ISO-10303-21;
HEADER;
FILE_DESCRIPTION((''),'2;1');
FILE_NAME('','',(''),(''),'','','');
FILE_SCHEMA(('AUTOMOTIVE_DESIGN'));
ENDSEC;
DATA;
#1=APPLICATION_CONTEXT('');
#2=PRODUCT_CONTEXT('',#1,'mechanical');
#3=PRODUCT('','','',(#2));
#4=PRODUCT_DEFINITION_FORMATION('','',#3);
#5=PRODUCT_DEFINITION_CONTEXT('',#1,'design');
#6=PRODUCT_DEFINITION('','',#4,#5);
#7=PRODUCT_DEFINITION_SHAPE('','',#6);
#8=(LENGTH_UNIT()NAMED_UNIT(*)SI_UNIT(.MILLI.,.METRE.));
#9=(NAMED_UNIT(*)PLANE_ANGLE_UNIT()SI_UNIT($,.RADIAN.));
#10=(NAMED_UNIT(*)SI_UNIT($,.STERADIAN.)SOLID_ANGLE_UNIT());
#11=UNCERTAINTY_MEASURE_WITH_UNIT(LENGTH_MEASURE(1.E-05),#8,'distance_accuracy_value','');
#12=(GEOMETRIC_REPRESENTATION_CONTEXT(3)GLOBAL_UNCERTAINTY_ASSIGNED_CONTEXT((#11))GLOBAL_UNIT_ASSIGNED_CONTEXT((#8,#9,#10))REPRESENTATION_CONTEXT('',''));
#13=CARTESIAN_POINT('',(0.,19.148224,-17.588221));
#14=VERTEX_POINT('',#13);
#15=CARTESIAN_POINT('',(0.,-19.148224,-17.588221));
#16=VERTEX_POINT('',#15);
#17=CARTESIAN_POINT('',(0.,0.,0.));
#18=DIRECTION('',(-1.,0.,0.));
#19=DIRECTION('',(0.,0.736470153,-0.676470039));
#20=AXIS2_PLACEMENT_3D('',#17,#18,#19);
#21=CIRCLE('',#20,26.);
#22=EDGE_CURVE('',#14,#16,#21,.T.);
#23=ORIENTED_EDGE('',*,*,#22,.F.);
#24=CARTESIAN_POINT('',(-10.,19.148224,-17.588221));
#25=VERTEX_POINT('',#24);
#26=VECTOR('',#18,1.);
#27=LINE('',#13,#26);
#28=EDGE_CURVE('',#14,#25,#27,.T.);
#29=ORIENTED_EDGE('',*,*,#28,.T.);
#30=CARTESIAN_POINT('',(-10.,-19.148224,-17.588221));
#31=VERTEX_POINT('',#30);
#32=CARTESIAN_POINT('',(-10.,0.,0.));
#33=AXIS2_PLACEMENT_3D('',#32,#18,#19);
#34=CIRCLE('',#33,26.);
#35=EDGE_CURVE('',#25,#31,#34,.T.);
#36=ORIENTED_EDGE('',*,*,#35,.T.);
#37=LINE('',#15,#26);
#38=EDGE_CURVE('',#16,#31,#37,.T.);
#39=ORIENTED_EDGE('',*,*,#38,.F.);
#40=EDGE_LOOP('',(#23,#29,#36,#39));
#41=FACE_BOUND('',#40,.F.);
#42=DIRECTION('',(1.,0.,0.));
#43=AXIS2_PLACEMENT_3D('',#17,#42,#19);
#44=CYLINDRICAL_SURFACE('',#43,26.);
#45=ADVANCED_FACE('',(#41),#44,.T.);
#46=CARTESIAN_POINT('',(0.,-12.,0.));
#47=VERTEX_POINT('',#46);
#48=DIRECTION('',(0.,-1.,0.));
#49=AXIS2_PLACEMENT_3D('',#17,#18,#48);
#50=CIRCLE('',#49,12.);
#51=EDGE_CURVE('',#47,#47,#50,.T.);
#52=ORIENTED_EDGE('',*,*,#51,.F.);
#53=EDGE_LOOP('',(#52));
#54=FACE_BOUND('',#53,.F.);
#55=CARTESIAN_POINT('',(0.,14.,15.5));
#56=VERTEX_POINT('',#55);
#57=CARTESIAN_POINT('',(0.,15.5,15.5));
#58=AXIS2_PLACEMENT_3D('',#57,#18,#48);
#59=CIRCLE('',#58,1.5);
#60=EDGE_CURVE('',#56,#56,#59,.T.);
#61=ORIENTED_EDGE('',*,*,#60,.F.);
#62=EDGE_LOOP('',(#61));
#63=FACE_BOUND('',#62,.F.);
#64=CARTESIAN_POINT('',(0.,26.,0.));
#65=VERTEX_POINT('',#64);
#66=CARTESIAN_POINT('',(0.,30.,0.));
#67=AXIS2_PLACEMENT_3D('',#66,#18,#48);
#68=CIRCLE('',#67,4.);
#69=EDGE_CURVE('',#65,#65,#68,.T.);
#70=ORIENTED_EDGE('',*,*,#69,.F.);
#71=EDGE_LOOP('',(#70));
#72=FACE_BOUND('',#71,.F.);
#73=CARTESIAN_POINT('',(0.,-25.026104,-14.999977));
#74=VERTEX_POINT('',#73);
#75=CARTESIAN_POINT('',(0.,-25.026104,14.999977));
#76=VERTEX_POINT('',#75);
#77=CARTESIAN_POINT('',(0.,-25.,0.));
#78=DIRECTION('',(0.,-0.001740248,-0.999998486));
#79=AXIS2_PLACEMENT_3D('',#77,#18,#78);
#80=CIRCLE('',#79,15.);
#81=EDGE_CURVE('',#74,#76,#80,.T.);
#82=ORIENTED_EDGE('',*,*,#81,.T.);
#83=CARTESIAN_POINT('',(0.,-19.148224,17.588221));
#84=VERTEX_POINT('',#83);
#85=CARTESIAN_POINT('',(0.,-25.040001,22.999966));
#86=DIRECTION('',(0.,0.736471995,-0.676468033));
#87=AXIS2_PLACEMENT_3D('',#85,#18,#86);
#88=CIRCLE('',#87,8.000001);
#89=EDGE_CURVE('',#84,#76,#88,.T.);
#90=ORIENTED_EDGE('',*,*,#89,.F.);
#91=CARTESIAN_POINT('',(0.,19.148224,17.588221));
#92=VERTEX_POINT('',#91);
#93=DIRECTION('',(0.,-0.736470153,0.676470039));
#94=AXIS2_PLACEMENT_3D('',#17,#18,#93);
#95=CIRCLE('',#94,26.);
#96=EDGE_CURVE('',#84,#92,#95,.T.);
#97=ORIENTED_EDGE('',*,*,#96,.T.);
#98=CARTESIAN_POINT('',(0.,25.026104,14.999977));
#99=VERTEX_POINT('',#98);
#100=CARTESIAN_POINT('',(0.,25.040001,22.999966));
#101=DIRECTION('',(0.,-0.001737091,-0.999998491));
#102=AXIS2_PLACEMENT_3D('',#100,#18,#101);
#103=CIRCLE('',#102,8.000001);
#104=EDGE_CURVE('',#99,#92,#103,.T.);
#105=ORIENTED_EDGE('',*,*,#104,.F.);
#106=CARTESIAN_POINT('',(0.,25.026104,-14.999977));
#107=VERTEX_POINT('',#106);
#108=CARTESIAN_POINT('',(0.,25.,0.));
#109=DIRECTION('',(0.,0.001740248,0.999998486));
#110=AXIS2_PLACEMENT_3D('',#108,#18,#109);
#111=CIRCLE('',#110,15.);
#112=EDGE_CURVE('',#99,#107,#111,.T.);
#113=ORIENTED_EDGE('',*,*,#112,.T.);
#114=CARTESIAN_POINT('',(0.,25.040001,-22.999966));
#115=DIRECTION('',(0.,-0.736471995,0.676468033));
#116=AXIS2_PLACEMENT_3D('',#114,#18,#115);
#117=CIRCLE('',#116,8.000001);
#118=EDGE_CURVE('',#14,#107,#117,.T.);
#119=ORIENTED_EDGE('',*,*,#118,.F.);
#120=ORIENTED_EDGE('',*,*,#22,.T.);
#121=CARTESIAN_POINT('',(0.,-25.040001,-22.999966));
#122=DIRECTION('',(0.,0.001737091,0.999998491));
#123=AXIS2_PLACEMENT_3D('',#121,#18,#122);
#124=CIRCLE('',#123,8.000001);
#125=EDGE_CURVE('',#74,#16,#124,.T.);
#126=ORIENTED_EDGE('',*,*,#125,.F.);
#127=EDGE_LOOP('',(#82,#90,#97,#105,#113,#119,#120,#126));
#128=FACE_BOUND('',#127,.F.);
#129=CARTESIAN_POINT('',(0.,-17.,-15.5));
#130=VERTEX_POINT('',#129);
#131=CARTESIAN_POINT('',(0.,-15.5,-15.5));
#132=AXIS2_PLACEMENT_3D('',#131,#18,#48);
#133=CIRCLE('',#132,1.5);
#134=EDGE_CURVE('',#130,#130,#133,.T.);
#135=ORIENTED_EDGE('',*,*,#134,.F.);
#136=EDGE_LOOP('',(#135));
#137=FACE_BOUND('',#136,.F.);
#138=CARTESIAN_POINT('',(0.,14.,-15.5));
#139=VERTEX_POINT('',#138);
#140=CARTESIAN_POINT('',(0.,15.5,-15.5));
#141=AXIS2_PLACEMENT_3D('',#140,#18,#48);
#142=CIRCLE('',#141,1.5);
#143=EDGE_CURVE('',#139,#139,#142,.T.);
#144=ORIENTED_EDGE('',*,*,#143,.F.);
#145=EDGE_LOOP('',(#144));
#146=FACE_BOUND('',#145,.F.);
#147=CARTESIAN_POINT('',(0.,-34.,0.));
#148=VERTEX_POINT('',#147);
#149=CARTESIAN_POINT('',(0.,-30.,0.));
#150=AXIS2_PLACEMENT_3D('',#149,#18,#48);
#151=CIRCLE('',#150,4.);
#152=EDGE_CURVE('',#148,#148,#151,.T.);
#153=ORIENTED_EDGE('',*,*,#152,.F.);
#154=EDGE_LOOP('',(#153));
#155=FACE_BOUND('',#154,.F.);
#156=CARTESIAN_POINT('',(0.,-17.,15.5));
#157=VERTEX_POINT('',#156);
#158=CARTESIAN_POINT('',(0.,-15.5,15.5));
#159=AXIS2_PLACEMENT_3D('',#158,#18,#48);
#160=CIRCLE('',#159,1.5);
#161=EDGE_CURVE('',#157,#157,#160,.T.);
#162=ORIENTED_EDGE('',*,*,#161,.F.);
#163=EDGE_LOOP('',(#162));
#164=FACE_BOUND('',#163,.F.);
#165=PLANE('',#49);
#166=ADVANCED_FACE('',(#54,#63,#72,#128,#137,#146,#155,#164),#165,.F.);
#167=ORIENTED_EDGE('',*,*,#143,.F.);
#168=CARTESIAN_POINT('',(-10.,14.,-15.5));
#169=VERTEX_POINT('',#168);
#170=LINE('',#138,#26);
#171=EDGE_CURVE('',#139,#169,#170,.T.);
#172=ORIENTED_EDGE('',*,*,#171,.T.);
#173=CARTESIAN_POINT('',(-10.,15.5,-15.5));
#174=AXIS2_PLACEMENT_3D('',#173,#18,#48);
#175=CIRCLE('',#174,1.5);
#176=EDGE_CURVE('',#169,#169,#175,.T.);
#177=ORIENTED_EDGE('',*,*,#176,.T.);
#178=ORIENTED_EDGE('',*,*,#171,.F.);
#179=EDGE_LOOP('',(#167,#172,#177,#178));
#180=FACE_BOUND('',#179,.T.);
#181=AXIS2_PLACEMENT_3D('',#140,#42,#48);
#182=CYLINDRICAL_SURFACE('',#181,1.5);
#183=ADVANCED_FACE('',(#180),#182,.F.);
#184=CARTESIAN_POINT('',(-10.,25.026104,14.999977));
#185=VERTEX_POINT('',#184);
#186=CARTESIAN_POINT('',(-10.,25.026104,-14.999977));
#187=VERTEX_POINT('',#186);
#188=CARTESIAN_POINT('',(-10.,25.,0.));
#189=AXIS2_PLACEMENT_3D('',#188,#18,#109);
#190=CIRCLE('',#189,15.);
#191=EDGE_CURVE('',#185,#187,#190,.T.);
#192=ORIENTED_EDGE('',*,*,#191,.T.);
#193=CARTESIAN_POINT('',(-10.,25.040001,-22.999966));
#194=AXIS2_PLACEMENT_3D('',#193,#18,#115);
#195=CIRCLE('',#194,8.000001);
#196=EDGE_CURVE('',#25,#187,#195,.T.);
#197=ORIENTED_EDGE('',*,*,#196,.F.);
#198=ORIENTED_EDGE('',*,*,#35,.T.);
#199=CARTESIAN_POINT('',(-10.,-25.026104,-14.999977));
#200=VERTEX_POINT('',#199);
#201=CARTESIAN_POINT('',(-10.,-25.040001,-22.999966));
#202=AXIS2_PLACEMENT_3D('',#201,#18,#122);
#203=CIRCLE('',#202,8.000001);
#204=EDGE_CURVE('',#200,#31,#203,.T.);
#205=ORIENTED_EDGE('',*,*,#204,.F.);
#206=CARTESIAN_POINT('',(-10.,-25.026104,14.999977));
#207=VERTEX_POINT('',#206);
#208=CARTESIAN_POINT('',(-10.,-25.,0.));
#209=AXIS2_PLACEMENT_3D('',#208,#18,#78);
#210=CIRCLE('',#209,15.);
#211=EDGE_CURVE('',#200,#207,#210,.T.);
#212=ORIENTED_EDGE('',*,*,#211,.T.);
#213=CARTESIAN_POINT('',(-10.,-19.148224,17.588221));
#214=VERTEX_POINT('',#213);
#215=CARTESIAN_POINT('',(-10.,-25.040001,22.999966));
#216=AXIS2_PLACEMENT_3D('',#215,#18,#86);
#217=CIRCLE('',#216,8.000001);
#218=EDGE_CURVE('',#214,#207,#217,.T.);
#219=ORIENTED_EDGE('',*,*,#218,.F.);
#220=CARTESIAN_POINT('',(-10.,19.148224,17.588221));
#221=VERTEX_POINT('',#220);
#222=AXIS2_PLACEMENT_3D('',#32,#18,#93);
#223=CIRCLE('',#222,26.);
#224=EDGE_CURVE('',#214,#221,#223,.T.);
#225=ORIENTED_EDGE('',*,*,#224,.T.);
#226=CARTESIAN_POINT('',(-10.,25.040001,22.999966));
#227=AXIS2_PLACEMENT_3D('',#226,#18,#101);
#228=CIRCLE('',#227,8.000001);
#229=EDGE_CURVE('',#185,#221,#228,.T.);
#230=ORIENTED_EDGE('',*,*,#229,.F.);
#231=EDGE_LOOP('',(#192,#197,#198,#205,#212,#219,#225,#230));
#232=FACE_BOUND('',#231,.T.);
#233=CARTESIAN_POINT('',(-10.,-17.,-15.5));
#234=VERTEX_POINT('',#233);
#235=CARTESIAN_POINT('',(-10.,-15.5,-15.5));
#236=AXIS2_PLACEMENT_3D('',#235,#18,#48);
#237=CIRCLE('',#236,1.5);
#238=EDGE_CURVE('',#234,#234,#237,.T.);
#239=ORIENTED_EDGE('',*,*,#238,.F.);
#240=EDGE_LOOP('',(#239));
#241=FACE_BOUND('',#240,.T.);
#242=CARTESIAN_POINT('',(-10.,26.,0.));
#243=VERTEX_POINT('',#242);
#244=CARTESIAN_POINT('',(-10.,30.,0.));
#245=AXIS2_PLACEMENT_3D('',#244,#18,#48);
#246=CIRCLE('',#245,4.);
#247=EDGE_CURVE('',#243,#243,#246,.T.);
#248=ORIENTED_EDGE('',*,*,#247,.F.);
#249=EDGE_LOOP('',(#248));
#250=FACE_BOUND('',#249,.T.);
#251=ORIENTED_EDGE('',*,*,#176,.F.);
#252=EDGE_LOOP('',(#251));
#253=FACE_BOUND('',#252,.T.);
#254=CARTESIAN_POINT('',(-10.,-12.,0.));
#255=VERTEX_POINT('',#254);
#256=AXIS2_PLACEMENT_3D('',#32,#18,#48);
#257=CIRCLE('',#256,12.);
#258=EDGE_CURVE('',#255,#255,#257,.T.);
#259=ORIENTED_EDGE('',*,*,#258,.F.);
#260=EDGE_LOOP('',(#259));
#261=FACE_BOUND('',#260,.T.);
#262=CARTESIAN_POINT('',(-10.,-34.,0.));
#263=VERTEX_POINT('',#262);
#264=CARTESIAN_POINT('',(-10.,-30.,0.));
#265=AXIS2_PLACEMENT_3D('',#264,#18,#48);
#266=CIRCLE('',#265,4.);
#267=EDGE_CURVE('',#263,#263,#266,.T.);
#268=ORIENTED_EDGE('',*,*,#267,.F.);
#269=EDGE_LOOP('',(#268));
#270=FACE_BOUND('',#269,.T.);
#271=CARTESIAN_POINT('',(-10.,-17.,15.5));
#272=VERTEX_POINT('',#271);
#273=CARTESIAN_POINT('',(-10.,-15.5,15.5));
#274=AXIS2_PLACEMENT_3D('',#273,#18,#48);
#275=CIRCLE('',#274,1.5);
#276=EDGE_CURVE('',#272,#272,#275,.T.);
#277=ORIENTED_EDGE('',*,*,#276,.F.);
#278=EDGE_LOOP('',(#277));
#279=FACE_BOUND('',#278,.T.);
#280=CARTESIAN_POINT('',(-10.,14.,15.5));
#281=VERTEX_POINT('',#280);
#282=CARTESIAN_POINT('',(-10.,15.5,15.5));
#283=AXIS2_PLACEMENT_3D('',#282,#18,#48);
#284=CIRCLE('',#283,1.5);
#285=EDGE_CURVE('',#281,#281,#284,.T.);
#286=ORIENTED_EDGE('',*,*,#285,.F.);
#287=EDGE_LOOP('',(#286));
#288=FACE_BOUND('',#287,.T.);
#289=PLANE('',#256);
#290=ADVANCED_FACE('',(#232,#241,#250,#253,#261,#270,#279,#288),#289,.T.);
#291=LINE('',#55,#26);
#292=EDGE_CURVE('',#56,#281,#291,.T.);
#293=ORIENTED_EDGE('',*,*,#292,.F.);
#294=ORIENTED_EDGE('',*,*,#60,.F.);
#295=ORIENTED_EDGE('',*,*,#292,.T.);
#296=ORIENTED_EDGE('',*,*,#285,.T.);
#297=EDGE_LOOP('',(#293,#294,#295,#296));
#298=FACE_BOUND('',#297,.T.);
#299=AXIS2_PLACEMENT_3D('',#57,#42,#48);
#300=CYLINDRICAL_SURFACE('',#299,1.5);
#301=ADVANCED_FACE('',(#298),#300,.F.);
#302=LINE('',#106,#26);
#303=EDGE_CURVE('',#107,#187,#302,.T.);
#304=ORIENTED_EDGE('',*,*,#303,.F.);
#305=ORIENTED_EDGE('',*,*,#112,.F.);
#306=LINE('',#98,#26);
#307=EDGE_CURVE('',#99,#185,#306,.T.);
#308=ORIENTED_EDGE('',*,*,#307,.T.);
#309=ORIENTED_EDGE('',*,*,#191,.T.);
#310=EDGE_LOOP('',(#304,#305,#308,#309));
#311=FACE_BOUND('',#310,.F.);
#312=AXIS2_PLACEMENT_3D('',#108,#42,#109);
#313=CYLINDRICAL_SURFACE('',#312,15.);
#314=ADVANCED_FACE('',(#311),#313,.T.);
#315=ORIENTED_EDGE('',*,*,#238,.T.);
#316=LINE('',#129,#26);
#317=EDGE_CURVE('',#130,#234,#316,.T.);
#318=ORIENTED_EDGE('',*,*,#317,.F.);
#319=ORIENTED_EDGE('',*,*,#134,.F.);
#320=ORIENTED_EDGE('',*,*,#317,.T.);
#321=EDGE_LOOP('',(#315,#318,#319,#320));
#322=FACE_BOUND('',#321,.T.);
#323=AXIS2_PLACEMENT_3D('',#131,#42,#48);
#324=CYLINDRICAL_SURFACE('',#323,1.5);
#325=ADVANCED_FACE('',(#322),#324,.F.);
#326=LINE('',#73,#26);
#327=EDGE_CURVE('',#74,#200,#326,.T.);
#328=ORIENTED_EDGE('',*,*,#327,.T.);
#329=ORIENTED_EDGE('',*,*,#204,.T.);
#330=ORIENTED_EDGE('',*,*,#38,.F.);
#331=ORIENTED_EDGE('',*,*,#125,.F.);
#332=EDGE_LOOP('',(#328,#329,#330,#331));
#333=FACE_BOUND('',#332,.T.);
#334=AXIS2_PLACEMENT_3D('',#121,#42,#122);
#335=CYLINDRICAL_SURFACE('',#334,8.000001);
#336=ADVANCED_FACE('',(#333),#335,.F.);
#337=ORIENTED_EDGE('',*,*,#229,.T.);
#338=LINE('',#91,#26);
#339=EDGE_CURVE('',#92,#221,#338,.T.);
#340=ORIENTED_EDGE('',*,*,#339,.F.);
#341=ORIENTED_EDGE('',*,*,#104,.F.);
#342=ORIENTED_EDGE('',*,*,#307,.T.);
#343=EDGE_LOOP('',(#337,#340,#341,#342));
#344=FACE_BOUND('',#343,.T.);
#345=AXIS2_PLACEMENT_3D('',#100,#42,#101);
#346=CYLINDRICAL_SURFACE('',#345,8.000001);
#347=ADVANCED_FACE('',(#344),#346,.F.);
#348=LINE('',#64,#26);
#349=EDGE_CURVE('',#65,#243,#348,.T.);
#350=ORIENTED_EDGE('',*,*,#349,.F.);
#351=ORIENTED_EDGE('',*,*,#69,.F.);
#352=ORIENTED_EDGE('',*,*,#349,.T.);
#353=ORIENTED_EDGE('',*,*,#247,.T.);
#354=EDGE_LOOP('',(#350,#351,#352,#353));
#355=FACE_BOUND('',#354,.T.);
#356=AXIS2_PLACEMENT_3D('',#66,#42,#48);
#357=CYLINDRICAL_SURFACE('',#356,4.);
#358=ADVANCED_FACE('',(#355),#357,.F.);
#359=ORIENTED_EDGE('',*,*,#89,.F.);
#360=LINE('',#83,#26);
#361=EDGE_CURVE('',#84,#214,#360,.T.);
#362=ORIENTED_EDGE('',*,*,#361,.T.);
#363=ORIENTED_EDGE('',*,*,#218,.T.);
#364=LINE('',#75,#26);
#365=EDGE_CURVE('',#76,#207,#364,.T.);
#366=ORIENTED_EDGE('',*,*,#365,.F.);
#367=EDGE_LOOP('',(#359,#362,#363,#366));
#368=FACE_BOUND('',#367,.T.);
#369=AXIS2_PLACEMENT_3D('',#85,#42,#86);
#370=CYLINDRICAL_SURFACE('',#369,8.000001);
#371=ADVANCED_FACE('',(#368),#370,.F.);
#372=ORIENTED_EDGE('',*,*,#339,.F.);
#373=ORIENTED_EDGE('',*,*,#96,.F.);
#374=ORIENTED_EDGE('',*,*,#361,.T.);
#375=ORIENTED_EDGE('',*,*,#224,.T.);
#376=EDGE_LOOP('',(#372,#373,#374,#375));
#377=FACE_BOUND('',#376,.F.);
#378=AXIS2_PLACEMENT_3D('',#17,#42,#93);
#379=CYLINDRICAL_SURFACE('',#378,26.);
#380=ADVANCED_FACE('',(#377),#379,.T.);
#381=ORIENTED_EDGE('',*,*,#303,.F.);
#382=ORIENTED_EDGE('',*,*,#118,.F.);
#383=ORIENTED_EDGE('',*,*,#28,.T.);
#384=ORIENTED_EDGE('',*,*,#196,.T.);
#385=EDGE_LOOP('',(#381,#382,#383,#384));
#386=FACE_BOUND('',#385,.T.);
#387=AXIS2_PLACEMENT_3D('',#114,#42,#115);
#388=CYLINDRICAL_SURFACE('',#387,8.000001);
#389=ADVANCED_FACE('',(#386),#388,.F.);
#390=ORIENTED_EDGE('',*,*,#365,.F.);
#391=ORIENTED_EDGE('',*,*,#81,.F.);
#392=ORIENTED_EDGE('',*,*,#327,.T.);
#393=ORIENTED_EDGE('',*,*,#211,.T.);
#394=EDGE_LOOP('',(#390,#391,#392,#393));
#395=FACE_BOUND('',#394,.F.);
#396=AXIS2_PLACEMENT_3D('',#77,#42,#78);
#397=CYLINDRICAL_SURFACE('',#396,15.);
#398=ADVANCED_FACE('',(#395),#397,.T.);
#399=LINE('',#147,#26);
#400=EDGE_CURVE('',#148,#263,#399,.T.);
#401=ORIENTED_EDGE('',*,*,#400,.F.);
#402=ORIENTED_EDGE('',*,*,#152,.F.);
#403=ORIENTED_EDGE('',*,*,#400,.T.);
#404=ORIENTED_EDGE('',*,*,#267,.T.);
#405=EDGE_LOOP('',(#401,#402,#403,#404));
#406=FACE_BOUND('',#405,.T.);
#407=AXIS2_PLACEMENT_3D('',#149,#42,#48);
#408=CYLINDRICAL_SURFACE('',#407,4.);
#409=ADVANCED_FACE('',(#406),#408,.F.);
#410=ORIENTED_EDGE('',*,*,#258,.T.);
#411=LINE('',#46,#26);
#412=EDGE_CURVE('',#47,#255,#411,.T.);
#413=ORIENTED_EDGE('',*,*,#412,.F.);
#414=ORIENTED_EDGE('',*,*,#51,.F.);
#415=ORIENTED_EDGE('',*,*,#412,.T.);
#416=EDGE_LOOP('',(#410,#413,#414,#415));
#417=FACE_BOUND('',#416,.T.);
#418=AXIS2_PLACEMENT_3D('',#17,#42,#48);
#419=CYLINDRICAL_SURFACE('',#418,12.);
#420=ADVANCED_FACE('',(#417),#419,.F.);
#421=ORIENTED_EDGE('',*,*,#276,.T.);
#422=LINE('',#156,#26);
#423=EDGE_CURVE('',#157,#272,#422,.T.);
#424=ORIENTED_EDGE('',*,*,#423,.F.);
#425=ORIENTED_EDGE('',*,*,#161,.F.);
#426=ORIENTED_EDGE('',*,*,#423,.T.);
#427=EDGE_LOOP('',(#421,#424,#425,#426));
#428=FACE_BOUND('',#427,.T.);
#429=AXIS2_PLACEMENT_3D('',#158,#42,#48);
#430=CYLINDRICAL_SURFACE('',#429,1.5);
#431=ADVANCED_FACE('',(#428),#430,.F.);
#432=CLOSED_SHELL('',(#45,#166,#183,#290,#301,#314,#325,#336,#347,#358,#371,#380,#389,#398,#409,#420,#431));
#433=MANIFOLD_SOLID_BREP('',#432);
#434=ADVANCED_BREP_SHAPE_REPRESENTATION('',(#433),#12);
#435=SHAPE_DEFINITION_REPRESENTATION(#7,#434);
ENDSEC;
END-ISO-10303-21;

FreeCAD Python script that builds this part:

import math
import FreeCAD as App
import Part
import Sketcher

V = App.Vector
Q = App.Units.Quantity

doc = App.newDocument("Part")
params = doc.addObject("Spreadsheet::Sheet", "Params")
for row, (alias, value) in enumerate([
    ("sketch1_diameter", "3 mm"),
    ("sketch1_diameter2", "8 mm"),
    ("sketch1_diameter3", "24 mm"),
    ("sketch1_radius", "26 mm"),
    ("sketch1_radius2", "8.000001 mm"),
    ("pad1_length", "10 mm"),
], start=1):
    params.set(f"A{row}", alias)
    params.set(f"B{row}", "=" + value)
    params.setAlias(f"B{row}", alias)

body = doc.addObject("PartDesign::Body", "Body")

# Sketch on YZ plane
sketch1 = body.newObject("Sketcher::SketchObject", "Sketch")
sketch1.AttachmentSupport = (doc.getObject("YZ_Plane"), [""])
sketch1.MapMode = "FlatFace"
sketch1.addGeometry(Part.ArcOfCircle(Part.Circle(V(0, 0, 0), V(0, 0, 1), 26), math.radians(42.568411), math.radians(137.431589)), False)
sketch1.addGeometry(Part.ArcOfCircle(Part.Circle(V(25.040001, 22.999966, 0), V(0, 0, 1), 8.000001), math.radians(-137.431745), math.radians(-90.099528)), False)
sketch1.addGeometry(Part.ArcOfCircle(Part.Circle(V(25, 0, 0), V(0, 0, 1), 15), math.radians(-89.900291), math.radians(89.900291)), False)
sketch1.addGeometry(Part.ArcOfCircle(Part.Circle(V(25.040001, -22.999966, 0), V(0, 0, 1), 8.000001), math.radians(90.099528), math.radians(137.431745)), False)
sketch1.addGeometry(Part.ArcOfCircle(Part.Circle(V(0, 0, 0), V(0, 0, 1), 26), math.radians(-137.431589), math.radians(-42.568411)), False)
sketch1.addGeometry(Part.ArcOfCircle(Part.Circle(V(-25.040001, -22.999966, 0), V(0, 0, 1), 8.000001), math.radians(42.568255), math.radians(89.900472)), False)
sketch1.addGeometry(Part.ArcOfCircle(Part.Circle(V(-25, 0, 0), V(0, 0, 1), 15), math.radians(90.099709), math.radians(269.900291)), False)
sketch1.addGeometry(Part.ArcOfCircle(Part.Circle(V(-25.040001, 22.999966, 0), V(0, 0, 1), 8.000001), math.radians(-89.900472), math.radians(-42.568255)), False)
sketch1.addGeometry(Part.Circle(V(15.5, -15.5, 0), V(0, 0, 1), 1.5), False)
sketch1.addGeometry(Part.Circle(V(-15.5, -15.5, 0), V(0, 0, 1), 1.5), False)
sketch1.addGeometry(Part.Circle(V(30, 0, 0), V(0, 0, 1), 4), False)
sketch1.addGeometry(Part.Circle(V(15.5, 15.5, 0), V(0, 0, 1), 1.5), False)
sketch1.addGeometry(Part.Circle(V(0, 0, 0), V(0, 0, 1), 12), False)
sketch1.addGeometry(Part.Circle(V(-30, 0, 0), V(0, 0, 1), 4), False)
sketch1.addGeometry(Part.Circle(V(-15.5, 15.5, 0), V(0, 0, 1), 1.5), False)
sketch1.addConstraint(Sketcher.Constraint("Coincident", 0, 1, 1, 1))
sketch1.addConstraint(Sketcher.Constraint("Coincident", 1, 2, 2, 2))
sketch1.addConstraint(Sketcher.Constraint("Coincident", 2, 1, 3, 1))
sketch1.addConstraint(Sketcher.Constraint("Coincident", 3, 2, 4, 2))
sketch1.addConstraint(Sketcher.Constraint("Coincident", 4, 1, 5, 1))
sketch1.addConstraint(Sketcher.Constraint("Coincident", 5, 2, 6, 2))
sketch1.addConstraint(Sketcher.Constraint("Coincident", 6, 1, 7, 1))
sketch1.addConstraint(Sketcher.Constraint("Coincident", 7, 2, 0, 2))
sketch1.addConstraint(Sketcher.Constraint("Coincident", 0, 3, -1, 1))
sketch1.addConstraint(Sketcher.Constraint("Coincident", 4, 3, -1, 1))
sketch1.addConstraint(Sketcher.Constraint("Coincident", 12, 3, -1, 1))
sketch1.addConstraint(Sketcher.Constraint("Equal", 1, 3))
sketch1.addConstraint(Sketcher.Constraint("Equal", 0, 4))
sketch1.addConstraint(Sketcher.Constraint("Equal", 3, 5))
sketch1.addConstraint(Sketcher.Constraint("Equal", 2, 6))
sketch1.addConstraint(Sketcher.Constraint("Equal", 5, 7))
sketch1.addConstraint(Sketcher.Constraint("Equal", 8, 9))
sketch1.addConstraint(Sketcher.Constraint("Equal", 9, 11))
sketch1.addConstraint(Sketcher.Constraint("Equal", 10, 13))
sketch1.addConstraint(Sketcher.Constraint("Equal", 11, 14))
sketch1.addConstraint(Sketcher.Constraint("Symmetric", 2, 3, 6, 3, -1, 1))
sketch1.addConstraint(Sketcher.Constraint("Symmetric", 9, 3, 11, 3, -1, 1))
sketch1.addConstraint(Sketcher.Constraint("Symmetric", 10, 3, 13, 3, -1, 1))
sketch1.addConstraint(Sketcher.Constraint("Symmetric", 8, 3, 14, 3, -1, 1))
sketch1.addConstraint(Sketcher.Constraint("Symmetric", 8, 3, 9, 3, -2))
sketch1.addConstraint(Sketcher.Constraint("Symmetric", 2, 1, 5, 2, -2))
sketch1.addConstraint(Sketcher.Constraint("PointOnObject", 10, 3, -1))
sketch1.addConstraint(Sketcher.Constraint("Horizontal", 3, 2, 4, 1))
sketch1.addConstraint(Sketcher.Constraint("Horizontal", 1, 2, 6, 1))
sketch1.addConstraint(Sketcher.Constraint("Horizontal", 0, 1, 7, 2))
sketch1.addConstraint(Sketcher.Constraint("Vertical", 1, 2, 2, 1))
sketch1.addConstraint(Sketcher.Constraint("Vertical", 0, 1, 3, 2))
sketch1.addConstraint(Sketcher.Constraint("Diameter", 8, Q("3 mm")))
sketch1.addConstraint(Sketcher.Constraint("Diameter", 10, Q("8 mm")))
sketch1.addConstraint(Sketcher.Constraint("Diameter", 12, Q("24 mm")))
sketch1.addConstraint(Sketcher.Constraint("Radius", 0, Q("26 mm")))
sketch1.addConstraint(Sketcher.Constraint("Radius", 1, Q("8.000001 mm")))
sketch1.addConstraint(Sketcher.Constraint("Radius", 2, Q("15 mm")))
sketch1.addConstraint(Sketcher.Constraint("DistanceX", -1, 1, 2, 3, Q("25 mm")))
sketch1.addConstraint(Sketcher.Constraint("DistanceX", -1, 1, 10, 3, Q("30 mm")))
sketch1.addConstraint(Sketcher.Constraint("DistanceX", 9, 3, 8, 3, Q("31 mm")))
sketch1.addConstraint(Sketcher.Constraint("DistanceY", 8, 3, -1, 1, Q("15.5 mm")))
sketch1.addConstraint(Sketcher.Constraint("DistanceY", -1, 1, 0, 1, Q("17.588221 mm")))
sketch1.addConstraint(Sketcher.Constraint("DistanceX", 0, 1, 1, 2, Q("5.87788 mm")))
sketch1.setExpression("Constraints[32]", "Params.sketch1_diameter")
sketch1.setExpression("Constraints[33]", "Params.sketch1_diameter2")
sketch1.setExpression("Constraints[34]", "Params.sketch1_diameter3")
sketch1.setExpression("Constraints[35]", "Params.sketch1_radius")
sketch1.setExpression("Constraints[36]", "Params.sketch1_radius2")
pad1 = body.newObject("PartDesign::Pad", "Pad")
pad1.Profile = sketch1
pad1.setExpression("Length", "Params.pad1_length")
pad1.Reversed = True

doc.recompute()
